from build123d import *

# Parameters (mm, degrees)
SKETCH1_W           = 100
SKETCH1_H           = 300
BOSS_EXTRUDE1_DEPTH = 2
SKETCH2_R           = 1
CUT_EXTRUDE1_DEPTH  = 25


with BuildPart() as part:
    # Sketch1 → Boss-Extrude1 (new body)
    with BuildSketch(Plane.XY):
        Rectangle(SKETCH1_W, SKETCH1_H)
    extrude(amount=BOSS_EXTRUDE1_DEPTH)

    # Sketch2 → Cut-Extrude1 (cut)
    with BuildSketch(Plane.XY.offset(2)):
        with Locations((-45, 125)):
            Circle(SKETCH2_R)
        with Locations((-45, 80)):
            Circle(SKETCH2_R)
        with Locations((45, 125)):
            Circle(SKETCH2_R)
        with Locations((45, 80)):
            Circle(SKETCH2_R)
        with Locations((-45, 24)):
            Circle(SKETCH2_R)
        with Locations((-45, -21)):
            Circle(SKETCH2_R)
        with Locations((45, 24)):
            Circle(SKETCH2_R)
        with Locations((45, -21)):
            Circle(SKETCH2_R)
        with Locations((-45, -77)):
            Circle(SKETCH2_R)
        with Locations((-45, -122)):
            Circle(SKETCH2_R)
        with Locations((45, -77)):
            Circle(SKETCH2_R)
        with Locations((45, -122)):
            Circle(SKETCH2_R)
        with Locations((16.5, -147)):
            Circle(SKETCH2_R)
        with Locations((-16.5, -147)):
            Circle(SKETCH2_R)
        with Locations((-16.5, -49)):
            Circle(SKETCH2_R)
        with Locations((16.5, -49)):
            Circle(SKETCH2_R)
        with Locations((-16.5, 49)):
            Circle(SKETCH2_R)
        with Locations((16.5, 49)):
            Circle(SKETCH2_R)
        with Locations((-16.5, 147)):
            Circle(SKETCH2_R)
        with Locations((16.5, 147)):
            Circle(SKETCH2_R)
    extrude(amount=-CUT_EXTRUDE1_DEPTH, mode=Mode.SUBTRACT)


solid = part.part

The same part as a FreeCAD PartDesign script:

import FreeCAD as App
import Part
import Sketcher

V = App.Vector
Q = App.Units.Quantity


def add_polygon(sketch, points):
    """Adds a closed chain of lines whose ends are joined by coincident constraints."""
    first, n = sketch.GeometryCount, len(points)
    for a, b in zip(points, points[1:] + points[:1]):
        sketch.addGeometry(Part.LineSegment(App.Vector(*a, 0), App.Vector(*b, 0)), False)
    for i in range(n):
        sketch.addConstraint(Sketcher.Constraint("Coincident", first + i, 2, first + (i + 1) % n, 1))

doc = App.newDocument("Part")
body = doc.addObject("PartDesign::Body", "Body")

# Sketch on XY plane
sketch1 = body.newObject("Sketcher::SketchObject", "Sketch")
sketch1.AttachmentSupport = (doc.getObject("XY_Plane"), [""])
sketch1.MapMode = "FlatFace"
add_polygon(sketch1, [(-50, 150), (-50, -150), (50, -150), (50, 150)])  # lines 0-3
sketch1.addConstraint(Sketcher.Constraint("Vertical", 0))
sketch1.addConstraint(Sketcher.Constraint("Horizontal", 1))
sketch1.addConstraint(Sketcher.Constraint("Vertical", 2))
sketch1.addConstraint(Sketcher.Constraint("Horizontal", 3))
sketch1.addConstraint(Sketcher.Constraint("Symmetric", 0, 2, 2, 2, -1, 1))
sketch1.addConstraint(Sketcher.Constraint("DistanceX", 1, 1, 1, 2, Q("100 mm")))
sketch1.addConstraint(Sketcher.Constraint("DistanceY", 0, 2, 0, 1, Q("300 mm")))
pad1 = body.newObject("PartDesign::Pad", "Pad")
pad1.Profile = sketch1
pad1.Length = 2

# Sketch on XY plane
sketch2 = body.newObject("Sketcher::SketchObject", "Sketch001")
sketch2.AttachmentSupport = (doc.getObject("XY_Plane"), [""])
sketch2.MapMode = "FlatFace"
sketch2.AttachmentOffset = App.Placement(V(0, 0, 2), App.Rotation())
sketch2.addGeometry(Part.Circle(V(-45, 125, 0), V(0, 0, 1), 1), False)
sketch2.addGeometry(Part.Circle(V(-45, 80, 0), V(0, 0, 1), 1), False)
sketch2.addGeometry(Part.Circle(V(45, 125, 0), V(0, 0, 1), 1), False)
sketch2.addGeometry(Part.Circle(V(45, 80, 0), V(0, 0, 1), 1), False)
sketch2.addGeometry(Part.Circle(V(-45, 24, 0), V(0, 0, 1), 1), False)
sketch2.addGeometry(Part.Circle(V(-45, -21, 0), V(0, 0, 1), 1), False)
sketch2.addGeometry(Part.Circle(V(45, 24, 0), V(0, 0, 1), 1), False)
sketch2.addGeometry(Part.Circle(V(45, -21, 0), V(0, 0, 1), 1), False)
sketch2.addGeometry(Part.Circle(V(-45, -77, 0), V(0, 0, 1), 1), False)
sketch2.addGeometry(Part.Circle(V(-45, -122, 0), V(0, 0, 1), 1), False)
sketch2.addGeometry(Part.Circle(V(45, -77, 0), V(0, 0, 1), 1), False)
sketch2.addGeometry(Part.Circle(V(45, -122, 0), V(0, 0, 1), 1), False)
sketch2.addGeometry(Part.Circle(V(16.5, -147, 0), V(0, 0, 1), 1), False)
sketch2.addGeometry(Part.Circle(V(-16.5, -147, 0), V(0, 0, 1), 1), False)
sketch2.addGeometry(Part.Circle(V(-16.5, -49, 0), V(0, 0, 1), 1), False)
sketch2.addGeometry(Part.Circle(V(16.5, -49, 0), V(0, 0, 1), 1), False)
sketch2.addGeometry(Part.Circle(V(-16.5, 49, 0), V(0, 0, 1), 1), False)
sketch2.addGeometry(Part.Circle(V(16.5, 49, 0), V(0, 0, 1), 1), False)
sketch2.addGeometry(Part.Circle(V(-16.5, 147, 0), V(0, 0, 1), 1), False)
sketch2.addGeometry(Part.Circle(V(16.5, 147, 0), V(0, 0, 1), 1), False)
sketch2.addConstraint(Sketcher.Constraint("Equal", 0, 1))
sketch2.addConstraint(Sketcher.Constraint("Equal", 1, 2))
sketch2.addConstraint(Sketcher.Constraint("Equal", 2, 3))
sketch2.addConstraint(Sketcher.Constraint("Equal", 3, 4))
sketch2.addConstraint(Sketcher.Constraint("Equal", 4, 5))
sketch2.addConstraint(Sketcher.Constraint("Equal", 5, 6))
sketch2.addConstraint(Sketcher.Constraint("Equal", 6, 7))
sketch2.addConstraint(Sketcher.Constraint("Equal", 7, 8))
sketch2.addConstraint(Sketcher.Constraint("Equal", 8, 9))
sketch2.addConstraint(Sketcher.Constraint("Equal", 9, 10))
sketch2.addConstraint(Sketcher.Constraint("Equal", 10, 11))
sketch2.addConstraint(Sketcher.Constraint("Equal", 11, 12))
sketch2.addConstraint(Sketcher.Constraint("Equal", 12, 13))
sketch2.addConstraint(Sketcher.Constraint("Equal", 13, 14))
sketch2.addConstraint(Sketcher.Constraint("Equal", 14, 15))
sketch2.addConstraint(Sketcher.Constraint("Equal", 15, 16))
sketch2.addConstraint(Sketcher.Constraint("Equal", 16, 17))
sketch2.addConstraint(Sketcher.Constraint("Equal", 17, 18))
sketch2.addConstraint(Sketcher.Constraint("Equal", 18, 19))
sketch2.addConstraint(Sketcher.Constraint("Symmetric", 15, 3, 16, 3, -1, 1))
sketch2.addConstraint(Sketcher.Constraint("Symmetric", 14, 3, 17, 3, -1, 1))
sketch2.addConstraint(Sketcher.Constraint("Symmetric", 12, 3, 18, 3, -1, 1))
sketch2.addConstraint(Sketcher.Constraint("Symmetric", 13, 3, 19, 3, -1, 1))
sketch2.addConstraint(Sketcher.Constraint("Symmetric", 0, 3, 2, 3, -2))
sketch2.addConstraint(Sketcher.Constraint("Symmetric", 1, 3, 3, 3, -2))
sketch2.addConstraint(Sketcher.Constraint("Symmetric", 4, 3, 6, 3, -2))
sketch2.addConstraint(Sketcher.Constraint("Symmetric", 5, 3, 7, 3, -2))
sketch2.addConstraint(Sketcher.Constraint("Symmetric", 8, 3, 10, 3, -2))
sketch2.addConstraint(Sketcher.Constraint("Symmetric", 9, 3, 11, 3, -2))
sketch2.addConstraint(Sketcher.Constraint("Symmetric", 12, 3, 13, 3, -2))
sketch2.addConstraint(Sketcher.Constraint("Symmetric", 14, 3, 15, 3, -2))
sketch2.addConstraint(Sketcher.Constraint("Vertical", 0, 3, 1, 3))
sketch2.addConstraint(Sketcher.Constraint("Vertical", 1, 3, 4, 3))
sketch2.addConstraint(Sketcher.Constraint("Vertical", 4, 3, 5, 3))
sketch2.addConstraint(Sketcher.Constraint("Vertical", 5, 3, 8, 3))
sketch2.addConstraint(Sketcher.Constraint("Vertical", 8, 3, 9, 3))
sketch2.addConstraint(Sketcher.Constraint("Vertical", 13, 3, 14, 3))
sketch2.addConstraint(Sketcher.Constraint("Diameter", 0, Q("2 mm")))
sketch2.addConstraint(Sketcher.Constraint("DistanceX", 0, 3, -1, 1, Q("45 mm")))
sketch2.addConstraint(Sketcher.Constraint("DistanceY", -1, 1, 0, 3, Q("125 mm")))
sketch2.addConstraint(Sketcher.Constraint("DistanceY", -1, 1, 1, 3, Q("80 mm")))
sketch2.addConstraint(Sketcher.Constraint("DistanceY", -1, 1, 4, 3, Q("24 mm")))
sketch2.addConstraint(Sketcher.Constraint("DistanceY", 5, 3, -1, 1, Q("21 mm")))
sketch2.addConstraint(Sketcher.Constraint("DistanceY", 8, 3, -1, 1, Q("77 mm")))
sketch2.addConstraint(Sketcher.Constraint("DistanceY", 9, 3, -1, 1, Q("122 mm")))
sketch2.addConstraint(Sketcher.Constraint("DistanceY", 12, 3, -1, 1, Q("147 mm")))
sketch2.addConstraint(Sketcher.Constraint("DistanceY", 14, 3, -1, 1, Q("49 mm")))
sketch2.addConstraint(Sketcher.Constraint("DistanceX", 13, 3, 12, 3, Q("33 mm")))
pocket1 = body.newObject("PartDesign::Pocket", "Pocket")
pocket1.Profile = sketch2
pocket1.Length = 25

doc.recompute()
